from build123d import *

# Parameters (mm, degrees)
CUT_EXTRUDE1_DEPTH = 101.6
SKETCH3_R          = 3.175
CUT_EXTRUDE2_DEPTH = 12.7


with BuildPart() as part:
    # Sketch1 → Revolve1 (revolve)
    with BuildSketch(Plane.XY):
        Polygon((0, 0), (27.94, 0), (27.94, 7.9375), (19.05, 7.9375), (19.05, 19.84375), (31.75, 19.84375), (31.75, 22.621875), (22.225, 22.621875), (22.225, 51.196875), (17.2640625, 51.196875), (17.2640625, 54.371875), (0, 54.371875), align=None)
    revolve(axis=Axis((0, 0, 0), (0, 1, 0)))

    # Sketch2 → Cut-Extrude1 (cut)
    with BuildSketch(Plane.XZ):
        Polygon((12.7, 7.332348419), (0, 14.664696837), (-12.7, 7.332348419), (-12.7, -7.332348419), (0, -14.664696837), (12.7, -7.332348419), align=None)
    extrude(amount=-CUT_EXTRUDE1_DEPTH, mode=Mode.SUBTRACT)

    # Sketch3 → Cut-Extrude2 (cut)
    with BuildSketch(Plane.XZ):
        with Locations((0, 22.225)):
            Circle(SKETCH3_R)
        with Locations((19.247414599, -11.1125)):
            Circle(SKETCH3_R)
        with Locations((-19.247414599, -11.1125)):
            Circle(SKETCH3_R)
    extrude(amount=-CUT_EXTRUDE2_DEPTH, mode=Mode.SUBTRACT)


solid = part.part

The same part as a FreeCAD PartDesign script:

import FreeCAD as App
import Part
import Sketcher
from FreeCAD import Vector
Q = App.Units.Quantity

doc = App.newDocument("Part")
body = doc.addObject("PartDesign::Body", "Body")

sketch1 = body.newObject("Sketcher::SketchObject", "Sketch")
sketch1.AttachmentSupport = (doc.getObject("XY_Plane"), [""])
sketch1.MapMode = "FlatFace"
sketch1.addGeometry(Part.LineSegment(Vector(0, 0, 0), Vector(27.94, 0, 0)), False)
sketch1.addGeometry(Part.LineSegment(Vector(27.94, 0, 0), Vector(27.94, 7.9375, 0)), False)
sketch1.addGeometry(Part.LineSegment(Vector(27.94, 7.9375, 0), Vector(19.05, 7.9375, 0)), False)
sketch1.addGeometry(Part.LineSegment(Vector(19.05, 7.9375, 0), Vector(19.05, 19.84375, 0)), False)
sketch1.addGeometry(Part.LineSegment(Vector(19.05, 19.84375, 0), Vector(31.75, 19.84375, 0)), False)
sketch1.addGeometry(Part.LineSegment(Vector(31.75, 19.84375, 0), Vector(31.75, 22.621875, 0)), False)
sketch1.addGeometry(Part.LineSegment(Vector(31.75, 22.621875, 0), Vector(22.225, 22.621875, 0)), False)
sketch1.addGeometry(Part.LineSegment(Vector(22.225, 22.621875, 0), Vector(22.225, 51.196875, 0)), False)
sketch1.addGeometry(Part.LineSegment(Vector(22.225, 51.196875, 0), Vector(17.264063, 51.196875, 0)), False)
sketch1.addGeometry(Part.LineSegment(Vector(17.264063, 51.196875, 0), Vector(17.264063, 54.371875, 0)), False)
sketch1.addGeometry(Part.LineSegment(Vector(17.264063, 54.371875, 0), Vector(0, 54.371875, 0)), False)
sketch1.addGeometry(Part.LineSegment(Vector(0, 54.371875, 0), Vector(0, 0, 0)), False)
sketch1.addConstraint(Sketcher.Constraint("Coincident", 0, 2, 1, 1))
sketch1.addConstraint(Sketcher.Constraint("Coincident", 1, 2, 2, 1))
sketch1.addConstraint(Sketcher.Constraint("Coincident", 2, 2, 3, 1))
sketch1.addConstraint(Sketcher.Constraint("Coincident", 3, 2, 4, 1))
sketch1.addConstraint(Sketcher.Constraint("Coincident", 4, 2, 5, 1))
sketch1.addConstraint(Sketcher.Constraint("Coincident", 5, 2, 6, 1))
sketch1.addConstraint(Sketcher.Constraint("Coincident", 6, 2, 7, 1))
sketch1.addConstraint(Sketcher.Constraint("Coincident", 7, 2, 8, 1))
sketch1.addConstraint(Sketcher.Constraint("Coincident", 8, 2, 9, 1))
sketch1.addConstraint(Sketcher.Constraint("Coincident", 9, 2, 10, 1))
sketch1.addConstraint(Sketcher.Constraint("Coincident", 10, 2, 11, 1))
sketch1.addConstraint(Sketcher.Constraint("Coincident", 11, 2, 0, 1))
sketch1.addConstraint(Sketcher.Constraint("Horizontal", 0))
sketch1.addConstraint(Sketcher.Constraint("Vertical", 1))
sketch1.addConstraint(Sketcher.Constraint("Horizontal", 2))
sketch1.addConstraint(Sketcher.Constraint("Vertical", 3))
sketch1.addConstraint(Sketcher.Constraint("Horizontal", 4))
sketch1.addConstraint(Sketcher.Constraint("Vertical", 5))
sketch1.addConstraint(Sketcher.Constraint("Horizontal", 6))
sketch1.addConstraint(Sketcher.Constraint("Vertical", 7))
sketch1.addConstraint(Sketcher.Constraint("Horizontal", 8))
sketch1.addConstraint(Sketcher.Constraint("Vertical", 9))
sketch1.addConstraint(Sketcher.Constraint("Horizontal", 10))
sketch1.addConstraint(Sketcher.Constraint("Vertical", 11))
sketch1.addConstraint(Sketcher.Constraint("Coincident", 11, 2, -1, 1))
sketch1.addConstraint(Sketcher.Constraint("DistanceX", 0, 1, 0, 2, Q("1.1 in")))
sketch1.addConstraint(Sketcher.Constraint("DistanceX", 4, 1, 4, 2, Q("0.5 in")))
sketch1.addConstraint(Sketcher.Constraint("DistanceX", 2, 2, 2, 1, Q("0.35 in")))
sketch1.addConstraint(Sketcher.Constraint("DistanceX", 6, 2, 6, 1, Q("0.375 in")))
sketch1.addConstraint(Sketcher.Constraint("DistanceY", 1, 1, 1, 2, Q("0.3125 in")))
sketch1.addConstraint(Sketcher.Constraint("DistanceY", 3, 1, 3, 2, Q("0.46875 in")))
sketch1.addConstraint(Sketcher.Constraint("DistanceY", 5, 1, 5, 2, Q("0.109375 in")))
sketch1.addConstraint(Sketcher.Constraint("DistanceY", 7, 1, 7, 2, Q("1.125 in")))
sketch1.addConstraint(Sketcher.Constraint("DistanceY", 9, 1, 9, 2, Q("0.125 in")))
sketch1.addConstraint(Sketcher.Constraint("DistanceX", 8, 2, 8, 1, 4.960938))
revolution = body.newObject("PartDesign::Revolution", "Revolution")
revolution.Profile = sketch1
revolution.ReferenceAxis = (sketch1, ["V_Axis"])
revolution.Angle = 360

sketch2 = body.newObject("Sketcher::SketchObject", "Sketch001")
sketch2.AttachmentSupport = (doc.getObject("XZ_Plane"), [""])
sketch2.MapMode = "FlatFace"
sketch2.addGeometry(Part.LineSegment(Vector(12.7, 7.332348, 0), Vector(0, 14.664697, 0)), False)
sketch2.addGeometry(Part.LineSegment(Vector(0, 14.664697, 0), Vector(-12.7, 7.332348, 0)), False)
sketch2.addGeometry(Part.LineSegment(Vector(-12.7, 7.332348, 0), Vector(-12.7, -7.332348, 0)), False)
sketch2.addGeometry(Part.LineSegment(Vector(-12.7, -7.332348, 0), Vector(0, -14.664697, 0)), False)
sketch2.addGeometry(Part.LineSegment(Vector(0, -14.664697, 0), Vector(12.7, -7.332348, 0)), False)
sketch2.addGeometry(Part.LineSegment(Vector(12.7, -7.332348, 0), Vector(12.7, 7.332348, 0)), False)
sketch2.addConstraint(Sketcher.Constraint("Coincident", 0, 2, 1, 1))
sketch2.addConstraint(Sketcher.Constraint("Coincident", 1, 2, 2, 1))
sketch2.addConstraint(Sketcher.Constraint("Coincident", 2, 2, 3, 1))
sketch2.addConstraint(Sketcher.Constraint("Coincident", 3, 2, 4, 1))
sketch2.addConstraint(Sketcher.Constraint("Coincident", 4, 2, 5, 1))
sketch2.addConstraint(Sketcher.Constraint("Coincident", 5, 2, 0, 1))
sketch2.addConstraint(Sketcher.Constraint("Vertical", 2))
sketch2.addConstraint(Sketcher.Constraint("Vertical", 5))
sketch2.addConstraint(Sketcher.Constraint("Symmetric", 0, 2, 3, 2, -1, 1))
sketch2.addConstraint(Sketcher.Constraint("Symmetric", 1, 2, 4, 2, -1, 1))
sketch2.addConstraint(Sketcher.Constraint("PointOnObject", 0, 2, -2))
sketch2.addConstraint(Sketcher.Constraint("Parallel", 0, 3))
sketch2.addConstraint(Sketcher.Constraint("Horizontal", 2, 2, 4, 2))
sketch2.addConstraint(Sketcher.Constraint("Angle", 0, Q("150 deg")))
sketch2.addConstraint(Sketcher.Constraint("DistanceX", 2, 2, 4, 2, Q("1 in")))
sketch2.addConstraint(Sketcher.Constraint("DistanceY", 2, 2, 2, 1, 14.664697))
pocket1 = body.newObject("PartDesign::Pocket", "Pocket")
pocket1.Profile = sketch2
pocket1.Length = Q("4 in")

sketch3 = body.newObject("Sketcher::SketchObject", "Sketch002")
sketch3.AttachmentSupport = (doc.getObject("XZ_Plane"), [""])
sketch3.MapMode = "FlatFace"
sketch3.addGeometry(Part.Circle(Vector(0, 22.225, 0), Vector(0, 0, 1), 3.175), False)
sketch3.addGeometry(Part.Circle(Vector(19.247415, -11.1125, 0), Vector(0, 0, 1), 3.175), False)
sketch3.addGeometry(Part.Circle(Vector(-19.247415, -11.1125, 0), Vector(0, 0, 1), 3.175), False)
sketch3.addConstraint(Sketcher.Constraint("Equal", 0, 1))
sketch3.addConstraint(Sketcher.Constraint("Equal", 1, 2))
sketch3.addConstraint(Sketcher.Constraint("Symmetric", 1, 3, 2, 3, -2))
sketch3.addConstraint(Sketcher.Constraint("PointOnObject", 0, 3, -2))
sketch3.addConstraint(Sketcher.Constraint("Diameter", 0, Q("0.25 in")))
sketch3.addConstraint(Sketcher.Constraint("DistanceY", -1, 1, 0, 3, Q("0.875 in")))
sketch3.addConstraint(Sketcher.Constraint("DistanceY", 1, 3, -1, 1, Q("0.4375 in")))
sketch3.addConstraint(Sketcher.Constraint("DistanceX", 2, 3, 1, 3, 38.494829))
pocket2 = body.newObject("PartDesign::Pocket", "Pocket001")
pocket2.Profile = sketch3
pocket2.Length = Q("0.5 in")

doc.recompute()
